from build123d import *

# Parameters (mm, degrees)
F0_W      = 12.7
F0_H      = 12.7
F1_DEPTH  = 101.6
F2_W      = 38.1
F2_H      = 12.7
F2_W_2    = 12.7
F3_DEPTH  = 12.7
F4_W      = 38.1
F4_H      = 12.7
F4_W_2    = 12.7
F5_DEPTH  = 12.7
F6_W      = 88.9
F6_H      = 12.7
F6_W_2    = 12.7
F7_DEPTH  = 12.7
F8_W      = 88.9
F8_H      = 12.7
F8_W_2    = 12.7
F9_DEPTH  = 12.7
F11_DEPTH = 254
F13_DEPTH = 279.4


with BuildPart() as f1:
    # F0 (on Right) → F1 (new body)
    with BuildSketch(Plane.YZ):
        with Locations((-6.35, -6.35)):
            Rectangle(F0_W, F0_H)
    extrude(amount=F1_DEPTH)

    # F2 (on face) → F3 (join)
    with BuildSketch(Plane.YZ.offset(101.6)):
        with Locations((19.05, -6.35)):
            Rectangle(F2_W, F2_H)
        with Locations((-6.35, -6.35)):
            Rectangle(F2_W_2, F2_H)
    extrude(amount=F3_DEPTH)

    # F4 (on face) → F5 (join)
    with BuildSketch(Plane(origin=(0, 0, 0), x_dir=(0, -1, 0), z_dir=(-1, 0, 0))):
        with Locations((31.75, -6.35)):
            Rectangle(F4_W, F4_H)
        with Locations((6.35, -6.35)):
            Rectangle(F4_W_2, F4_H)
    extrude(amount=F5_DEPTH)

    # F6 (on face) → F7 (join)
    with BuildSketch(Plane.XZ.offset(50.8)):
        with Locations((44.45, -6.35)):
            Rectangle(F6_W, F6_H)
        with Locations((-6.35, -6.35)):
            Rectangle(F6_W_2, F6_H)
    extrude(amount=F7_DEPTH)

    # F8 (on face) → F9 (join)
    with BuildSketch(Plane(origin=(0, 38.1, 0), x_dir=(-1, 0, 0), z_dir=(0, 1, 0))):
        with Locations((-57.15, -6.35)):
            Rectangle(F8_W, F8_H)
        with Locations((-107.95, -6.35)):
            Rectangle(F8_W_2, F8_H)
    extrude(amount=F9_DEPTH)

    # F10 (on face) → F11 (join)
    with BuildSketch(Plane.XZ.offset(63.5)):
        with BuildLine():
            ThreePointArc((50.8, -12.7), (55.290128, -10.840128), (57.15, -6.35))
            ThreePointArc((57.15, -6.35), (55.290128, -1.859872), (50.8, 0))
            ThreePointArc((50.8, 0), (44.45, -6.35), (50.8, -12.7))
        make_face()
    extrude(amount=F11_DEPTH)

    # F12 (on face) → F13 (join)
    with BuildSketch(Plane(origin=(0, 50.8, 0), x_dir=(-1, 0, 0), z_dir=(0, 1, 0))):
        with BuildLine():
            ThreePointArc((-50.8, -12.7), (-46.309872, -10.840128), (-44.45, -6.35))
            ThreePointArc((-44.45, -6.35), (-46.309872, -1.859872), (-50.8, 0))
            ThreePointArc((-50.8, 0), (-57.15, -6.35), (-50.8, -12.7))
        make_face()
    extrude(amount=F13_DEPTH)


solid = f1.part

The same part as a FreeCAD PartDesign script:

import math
import FreeCAD as App
import Part
import Sketcher
Q = App.Units.Quantity

doc = App.newDocument("Part")
body = doc.addObject("PartDesign::Body", "Body")

# Sketch on YZ plane
sketch1 = body.newObject("Sketcher::SketchObject", "Sketch")
sketch1.AttachmentSupport = (doc.getObject("YZ_Plane"), [""])
sketch1.MapMode = "FlatFace"
sketch1.addGeometry([
    Part.LineSegment(App.Vector(-13, 0, 0), App.Vector(-13, -13, 0)),
    Part.LineSegment(App.Vector(-13, -13, 0), App.Vector(0, -13, 0)),
    Part.LineSegment(App.Vector(0, -13, 0), App.Vector(0, 0, 0)),
    Part.LineSegment(App.Vector(0, 0, 0), App.Vector(-13, 0, 0)),
], False)
sketch1.addConstraint([
    Sketcher.Constraint("Coincident", 0, 2, 1, 1),
    Sketcher.Constraint("Coincident", 1, 2, 2, 1),
    Sketcher.Constraint("Coincident", 2, 2, 3, 1),
    Sketcher.Constraint("Coincident", 3, 2, 0, 1),
    Sketcher.Constraint("Vertical", 0),
    Sketcher.Constraint("Horizontal", 1),
    Sketcher.Constraint("Vertical", 2),
    Sketcher.Constraint("Horizontal", 3),
    Sketcher.Constraint("Coincident", 2, 2, -1, 1),
    Sketcher.Constraint("Equal", 3, 0),
    Sketcher.Constraint("DistanceX", 1, 1, 1, 2, Q("0.5 in")),
])
pad1 = body.newObject("PartDesign::Pad", "Pad")
pad1.Profile = sketch1
pad1.Length = Q("4 in")

# Sketch on YZ plane
sketch2 = body.newObject("Sketcher::SketchObject", "Sketch001")
sketch2.AttachmentSupport = (doc.getObject("YZ_Plane"), [""])
sketch2.MapMode = "FlatFace"
sketch2.AttachmentOffset = App.Placement(App.Vector(0, 0, 4 * 25.4), App.Rotation())
sketch2.addGeometry([
    Part.LineSegment(App.Vector(38, -13, 0), App.Vector(38, 0, 0)),
    Part.LineSegment(App.Vector(38, 0, 0), App.Vector(-13, 0, 0)),
    Part.LineSegment(App.Vector(-13, 0, 0), App.Vector(-13, -13, 0)),
    Part.LineSegment(App.Vector(-13, -13, 0), App.Vector(38, -13, 0)),
], False)
sketch2.addConstraint([
    Sketcher.Constraint("Coincident", 0, 2, 1, 1),
    Sketcher.Constraint("Coincident", 1, 2, 2, 1),
    Sketcher.Constraint("Coincident", 2, 2, 3, 1),
    Sketcher.Constraint("Coincident", 3, 2, 0, 1),
    Sketcher.Constraint("Vertical", 0),
    Sketcher.Constraint("Horizontal", 1),
    Sketcher.Constraint("Vertical", 2),
    Sketcher.Constraint("Horizontal", 3),
    Sketcher.Constraint("PointOnObject", 0, 2, -1),
    Sketcher.Constraint("DistanceX", 1, 2, 1, 1, Q("2 in")),
    Sketcher.Constraint("DistanceY", 0, 1, 0, 2, Q("0.5 in")),
    Sketcher.Constraint("DistanceX", -1, 1, 0, 2, Q("1.5 in")),
])
pad2 = body.newObject("PartDesign::Pad", "Pad001")
pad2.Profile = sketch2
pad2.Length = Q("0.5 in")

# Sketch on YZ plane
sketch3 = body.newObject("Sketcher::SketchObject", "Sketch002")
sketch3.AttachmentSupport = (doc.getObject("YZ_Plane"), [""])
sketch3.MapMode = "FlatFace"
sketch3.addGeometry([
    Part.LineSegment(App.Vector(-51, -13, 0), App.Vector(-51, 0, 0)),
    Part.LineSegment(App.Vector(-51, 0, 0), App.Vector(0, 0, 0)),
    Part.LineSegment(App.Vector(0, 0, 0), App.Vector(0, -13, 0)),
    Part.LineSegment(App.Vector(0, -13, 0), App.Vector(-51, -13, 0)),
], False)
sketch3.addConstraint([
    Sketcher.Constraint("Coincident", 0, 2, 1, 1),
    Sketcher.Constraint("Coincident", 1, 2, 2, 1),
    Sketcher.Constraint("Coincident", 2, 2, 3, 1),
    Sketcher.Constraint("Coincident", 3, 2, 0, 1),
    Sketcher.Constraint("Vertical", 0),
    Sketcher.Constraint("Horizontal", 1),
    Sketcher.Constraint("Vertical", 2),
    Sketcher.Constraint("Horizontal", 3),
    Sketcher.Constraint("Coincident", 1, 2, -1, 1),
    Sketcher.Constraint("DistanceX", 1, 1, 1, 2, Q("2 in")),
    Sketcher.Constraint("DistanceY", 0, 1, 0, 2, Q("0.5 in")),
])
pad3 = body.newObject("PartDesign::Pad", "Pad002")
pad3.Profile = sketch3
pad3.Length = Q("0.5 in")
pad3.Reversed = True

# Sketch on XZ plane
sketch4 = body.newObject("Sketcher::SketchObject", "Sketch003")
sketch4.AttachmentSupport = (doc.getObject("XZ_Plane"), [""])
sketch4.MapMode = "FlatFace"
sketch4.AttachmentOffset = App.Placement(App.Vector(0, 0, 2 * 25.4), App.Rotation())
sketch4.addGeometry([
    Part.LineSegment(App.Vector(89, -13, 0), App.Vector(89, 0, 0)),
    Part.LineSegment(App.Vector(89, 0, 0), App.Vector(-13, 0, 0)),
    Part.LineSegment(App.Vector(-13, 0, 0), App.Vector(-13, -13, 0)),
    Part.LineSegment(App.Vector(-13, -13, 0), App.Vector(89, -13, 0)),
], False)
sketch4.addConstraint([
    Sketcher.Constraint("Coincident", 0, 2, 1, 1),
    Sketcher.Constraint("Coincident", 1, 2, 2, 1),
    Sketcher.Constraint("Coincident", 2, 2, 3, 1),
    Sketcher.Constraint("Coincident", 3, 2, 0, 1),
    Sketcher.Constraint("Vertical", 0),
    Sketcher.Constraint("Horizontal", 1),
    Sketcher.Constraint("Vertical", 2),
    Sketcher.Constraint("Horizontal", 3),
    Sketcher.Constraint("PointOnObject", 0, 2, -1),
    Sketcher.Constraint("DistanceX", 1, 2, 1, 1, Q("4 in")),
    Sketcher.Constraint("DistanceY", 0, 1, 0, 2, Q("0.5 in")),
    Sketcher.Constraint("DistanceX", -1, 1, 0, 2, Q("3.5 in")),
])
pad4 = body.newObject("PartDesign::Pad", "Pad003")
pad4.Profile = sketch4
pad4.Length = Q("0.5 in")

# Sketch on XZ plane
sketch5 = body.newObject("Sketcher::SketchObject", "Sketch004")
sketch5.AttachmentSupport = (doc.getObject("XZ_Plane"), [""])
sketch5.MapMode = "FlatFace"
sketch5.AttachmentOffset = App.Placement(App.Vector(0, 0, -1.5 * 25.4), App.Rotation())
sketch5.addGeometry([
    Part.LineSegment(App.Vector(13, -13, 0), App.Vector(13, 0, 0)),
    Part.LineSegment(App.Vector(13, 0, 0), App.Vector(114, 0, 0)),
    Part.LineSegment(App.Vector(114, 0, 0), App.Vector(114, -13, 0)),
    Part.LineSegment(App.Vector(114, -13, 0), App.Vector(13, -13, 0)),
], False)
sketch5.addConstraint([
    Sketcher.Constraint("Coincident", 0, 2, 1, 1),
    Sketcher.Constraint("Coincident", 1, 2, 2, 1),
    Sketcher.Constraint("Coincident", 2, 2, 3, 1),
    Sketcher.Constraint("Coincident", 3, 2, 0, 1),
    Sketcher.Constraint("Vertical", 0),
    Sketcher.Constraint("Horizontal", 1),
    Sketcher.Constraint("Vertical", 2),
    Sketcher.Constraint("Horizontal", 3),
    Sketcher.Constraint("PointOnObject", 0, 2, -1),
    Sketcher.Constraint("DistanceX", 1, 1, 1, 2, Q("4 in")),
    Sketcher.Constraint("DistanceY", 0, 1, 0, 2, Q("0.5 in")),
    Sketcher.Constraint("DistanceX", -1, 1, 0, 2, Q("0.5 in")),
])
pad5 = body.newObject("PartDesign::Pad", "Pad004")
pad5.Profile = sketch5
pad5.Length = Q("0.5 in")
pad5.Reversed = True

# Sketch on XZ plane
sketch6 = body.newObject("Sketcher::SketchObject", "Sketch005")
sketch6.AttachmentSupport = (doc.getObject("XZ_Plane"), [""])
sketch6.MapMode = "FlatFace"
sketch6.AttachmentOffset = App.Placement(App.Vector(0, 0, 2.5 * 25.4), App.Rotation())
sketch6.addGeometry([
    Part.ArcOfCircle(Part.Circle(App.Vector(51, -6, 0), App.Vector(0, 0, 1), 6), math.radians(-90), math.radians(0)),
    Part.ArcOfCircle(Part.Circle(App.Vector(51, -6, 0), App.Vector(0, 0, 1), 6), math.radians(0), math.radians(90)),
    Part.ArcOfCircle(Part.Circle(App.Vector(51, -6, 0), App.Vector(0, 0, 1), 6), math.radians(90), math.radians(270)),
], False)
sketch6.addConstraint([
    Sketcher.Constraint("Tangent", 0, 2, 1, 1),
    Sketcher.Constraint("Tangent", 1, 2, 2, 1),
    Sketcher.Constraint("Tangent", 2, 2, 0, 1),
    Sketcher.Constraint("PointOnObject", 1, 2, -1),
    Sketcher.Constraint("Horizontal", 2, 3, 0, 2),
    Sketcher.Constraint("Vertical", 2, 3, 1, 2),
    Sketcher.Constraint("Vertical", 1, 2, 2, 2),
    Sketcher.Constraint("Radius", 0, Q("0.25 in")),
    Sketcher.Constraint("DistanceX", -1, 1, 0, 3, Q("2 in")),
])
pad6 = body.newObject("PartDesign::Pad", "Pad005")
pad6.Profile = sketch6
pad6.Length = Q("10 in")

# Sketch on XZ plane
sketch7 = body.newObject("Sketcher::SketchObject", "Sketch006")
sketch7.AttachmentSupport = (doc.getObject("XZ_Plane"), [""])
sketch7.MapMode = "FlatFace"
sketch7.AttachmentOffset = App.Placement(App.Vector(0, 0, -2 * 25.4), App.Rotation())
sketch7.addGeometry([
    Part.ArcOfCircle(Part.Circle(App.Vector(51, -6, 0), App.Vector(0, 0, 1), 6), math.radians(-180), math.radians(-90)),
    Part.ArcOfCircle(Part.Circle(App.Vector(51, -6, 0), App.Vector(0, 0, 1), 6), math.radians(90), math.radians(180)),
    Part.ArcOfCircle(Part.Circle(App.Vector(51, -6, 0), App.Vector(0, 0, 1), 6), math.radians(-90), math.radians(90)),
], False)
sketch7.addConstraint([
    Sketcher.Constraint("Tangent", 0, 1, 1, 2),
    Sketcher.Constraint("Tangent", 1, 1, 2, 2),
    Sketcher.Constraint("Tangent", 2, 1, 0, 2),
    Sketcher.Constraint("PointOnObject", 1, 1, -1),
    Sketcher.Constraint("Horizontal", 2, 3, 0, 1),
    Sketcher.Constraint("Vertical", 2, 3, 1, 1),
    Sketcher.Constraint("Vertical", 1, 1, 2, 1),
    Sketcher.Constraint("Radius", 0, Q("0.25 in")),
    Sketcher.Constraint("DistanceX", -1, 1, 0, 3, Q("2 in")),
])
pad7 = body.newObject("PartDesign::Pad", "Pad006")
pad7.Profile = sketch7
pad7.Length = Q("11 in")
pad7.Reversed = True

doc.recompute()
